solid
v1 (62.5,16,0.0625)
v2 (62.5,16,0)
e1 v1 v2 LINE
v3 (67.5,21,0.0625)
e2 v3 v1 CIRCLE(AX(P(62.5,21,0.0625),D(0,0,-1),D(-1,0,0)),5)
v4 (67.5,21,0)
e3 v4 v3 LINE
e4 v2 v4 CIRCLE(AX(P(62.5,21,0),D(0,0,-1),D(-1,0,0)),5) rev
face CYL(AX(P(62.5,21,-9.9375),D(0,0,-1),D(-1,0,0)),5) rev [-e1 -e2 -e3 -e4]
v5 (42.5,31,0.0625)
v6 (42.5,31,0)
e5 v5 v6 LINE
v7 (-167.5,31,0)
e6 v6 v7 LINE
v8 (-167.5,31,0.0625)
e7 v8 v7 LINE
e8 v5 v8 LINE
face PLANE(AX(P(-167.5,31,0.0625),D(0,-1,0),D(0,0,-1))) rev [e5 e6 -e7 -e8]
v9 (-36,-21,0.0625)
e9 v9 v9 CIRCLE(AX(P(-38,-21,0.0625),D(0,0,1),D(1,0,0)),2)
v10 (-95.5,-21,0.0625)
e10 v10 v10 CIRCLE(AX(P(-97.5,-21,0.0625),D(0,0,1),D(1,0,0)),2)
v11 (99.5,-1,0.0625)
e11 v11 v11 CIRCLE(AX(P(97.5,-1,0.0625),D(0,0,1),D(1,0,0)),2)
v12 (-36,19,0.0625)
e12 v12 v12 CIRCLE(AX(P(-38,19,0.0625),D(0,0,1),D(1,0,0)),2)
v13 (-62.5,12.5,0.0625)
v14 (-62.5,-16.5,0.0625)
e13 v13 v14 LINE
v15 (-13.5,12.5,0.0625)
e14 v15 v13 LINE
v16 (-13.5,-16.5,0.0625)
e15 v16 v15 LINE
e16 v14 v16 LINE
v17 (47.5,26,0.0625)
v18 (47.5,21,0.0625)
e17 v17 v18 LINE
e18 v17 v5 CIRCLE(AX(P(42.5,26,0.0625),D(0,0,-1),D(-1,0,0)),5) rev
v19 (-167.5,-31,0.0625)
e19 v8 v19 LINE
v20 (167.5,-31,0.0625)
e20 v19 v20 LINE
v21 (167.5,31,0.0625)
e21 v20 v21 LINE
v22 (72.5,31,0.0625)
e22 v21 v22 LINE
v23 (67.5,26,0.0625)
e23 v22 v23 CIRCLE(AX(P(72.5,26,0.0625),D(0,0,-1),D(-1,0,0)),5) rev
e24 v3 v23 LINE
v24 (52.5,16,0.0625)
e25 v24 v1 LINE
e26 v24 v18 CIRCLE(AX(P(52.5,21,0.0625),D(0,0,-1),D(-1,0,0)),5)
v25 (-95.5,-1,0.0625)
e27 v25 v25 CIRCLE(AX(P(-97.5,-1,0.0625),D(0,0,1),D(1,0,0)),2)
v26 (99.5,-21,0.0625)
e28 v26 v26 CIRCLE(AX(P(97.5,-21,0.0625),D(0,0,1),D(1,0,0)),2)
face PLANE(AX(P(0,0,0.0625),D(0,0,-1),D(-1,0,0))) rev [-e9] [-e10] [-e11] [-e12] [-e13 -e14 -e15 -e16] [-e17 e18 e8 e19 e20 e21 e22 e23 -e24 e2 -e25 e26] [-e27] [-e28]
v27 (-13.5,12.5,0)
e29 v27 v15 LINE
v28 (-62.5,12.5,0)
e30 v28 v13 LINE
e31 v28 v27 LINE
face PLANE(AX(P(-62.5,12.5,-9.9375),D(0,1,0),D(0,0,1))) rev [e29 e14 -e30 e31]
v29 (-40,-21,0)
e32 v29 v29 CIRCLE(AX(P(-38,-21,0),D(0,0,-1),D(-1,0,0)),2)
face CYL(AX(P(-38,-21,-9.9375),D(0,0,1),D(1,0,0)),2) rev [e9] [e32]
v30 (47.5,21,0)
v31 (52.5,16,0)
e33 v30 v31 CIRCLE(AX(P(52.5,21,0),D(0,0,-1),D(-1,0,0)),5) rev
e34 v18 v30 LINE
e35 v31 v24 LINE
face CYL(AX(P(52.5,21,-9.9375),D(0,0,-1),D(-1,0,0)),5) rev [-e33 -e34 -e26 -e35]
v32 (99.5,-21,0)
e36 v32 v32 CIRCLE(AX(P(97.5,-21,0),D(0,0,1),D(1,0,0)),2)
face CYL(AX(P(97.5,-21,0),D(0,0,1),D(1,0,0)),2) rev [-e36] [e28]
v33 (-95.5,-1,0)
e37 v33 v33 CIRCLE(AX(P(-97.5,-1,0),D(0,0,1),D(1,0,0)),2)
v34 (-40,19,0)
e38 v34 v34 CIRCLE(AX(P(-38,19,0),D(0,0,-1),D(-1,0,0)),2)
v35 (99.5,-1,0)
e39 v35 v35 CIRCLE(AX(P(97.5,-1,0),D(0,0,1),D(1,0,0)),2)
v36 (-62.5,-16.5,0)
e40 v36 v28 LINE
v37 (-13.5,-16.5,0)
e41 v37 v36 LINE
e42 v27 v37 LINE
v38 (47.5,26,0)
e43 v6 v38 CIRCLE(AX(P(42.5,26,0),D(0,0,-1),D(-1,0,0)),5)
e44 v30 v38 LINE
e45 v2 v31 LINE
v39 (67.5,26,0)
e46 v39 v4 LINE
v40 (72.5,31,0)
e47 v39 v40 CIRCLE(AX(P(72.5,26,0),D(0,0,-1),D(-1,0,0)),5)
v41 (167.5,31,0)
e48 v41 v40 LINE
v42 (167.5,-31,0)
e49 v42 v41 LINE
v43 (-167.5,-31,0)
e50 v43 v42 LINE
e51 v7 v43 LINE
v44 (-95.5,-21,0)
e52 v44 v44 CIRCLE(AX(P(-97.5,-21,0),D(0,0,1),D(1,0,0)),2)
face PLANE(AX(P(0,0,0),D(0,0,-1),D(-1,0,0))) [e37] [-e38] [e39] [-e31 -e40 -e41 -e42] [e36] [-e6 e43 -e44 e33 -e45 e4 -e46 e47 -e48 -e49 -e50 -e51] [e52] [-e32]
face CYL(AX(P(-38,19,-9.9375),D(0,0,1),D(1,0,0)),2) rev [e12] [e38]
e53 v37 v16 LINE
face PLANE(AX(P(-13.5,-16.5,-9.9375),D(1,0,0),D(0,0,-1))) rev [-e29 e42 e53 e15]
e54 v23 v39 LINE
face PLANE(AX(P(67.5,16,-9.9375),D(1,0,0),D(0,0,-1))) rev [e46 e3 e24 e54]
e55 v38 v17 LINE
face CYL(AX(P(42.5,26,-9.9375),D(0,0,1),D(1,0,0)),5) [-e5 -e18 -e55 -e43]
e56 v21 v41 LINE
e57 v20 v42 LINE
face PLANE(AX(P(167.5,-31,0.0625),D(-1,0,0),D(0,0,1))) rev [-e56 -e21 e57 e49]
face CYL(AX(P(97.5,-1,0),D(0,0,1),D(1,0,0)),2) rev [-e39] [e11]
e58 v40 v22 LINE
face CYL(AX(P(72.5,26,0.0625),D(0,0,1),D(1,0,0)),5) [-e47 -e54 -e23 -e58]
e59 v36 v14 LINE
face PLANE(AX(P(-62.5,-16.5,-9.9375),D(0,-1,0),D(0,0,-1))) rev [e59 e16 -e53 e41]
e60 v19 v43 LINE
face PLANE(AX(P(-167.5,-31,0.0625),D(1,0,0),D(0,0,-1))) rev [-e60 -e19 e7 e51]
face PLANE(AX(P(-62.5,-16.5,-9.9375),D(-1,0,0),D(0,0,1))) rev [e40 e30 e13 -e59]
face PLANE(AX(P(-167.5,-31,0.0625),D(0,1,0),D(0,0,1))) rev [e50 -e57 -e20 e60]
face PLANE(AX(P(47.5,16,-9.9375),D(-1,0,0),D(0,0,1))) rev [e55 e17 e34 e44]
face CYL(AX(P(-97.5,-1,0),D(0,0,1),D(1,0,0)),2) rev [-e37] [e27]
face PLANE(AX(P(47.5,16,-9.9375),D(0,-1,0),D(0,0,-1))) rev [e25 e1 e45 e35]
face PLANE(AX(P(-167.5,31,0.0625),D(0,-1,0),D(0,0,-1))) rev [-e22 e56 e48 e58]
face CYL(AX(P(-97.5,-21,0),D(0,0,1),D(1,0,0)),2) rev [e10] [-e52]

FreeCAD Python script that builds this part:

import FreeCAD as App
import Part
import Sketcher


def edges_at(feature, points):
    """Names of the edges that pass closest to the given points."""
    edges = feature.Shape.Edges
    near = lambda p: min(range(len(edges)), key=lambda i: edges[i].distToShape(Part.Vertex(*p))[0])
    return sorted({f"Edge{near(p) + 1}" for p in points})

doc = App.newDocument("Part")
body = doc.addObject("PartDesign::Body", "Body")

sketch1 = body.newObject("Sketcher::SketchObject", "Sketch")
sketch1.AttachmentSupport = (doc.getObject("XY_Plane"), [""])
sketch1.MapMode = "FlatFace"
sketch1.addGeometry([
    Part.LineSegment(App.Vector(-168, 31, 0), App.Vector(-168, -31, 0)),
    Part.LineSegment(App.Vector(-168, -31, 0), App.Vector(168, -31, 0)),
    Part.LineSegment(App.Vector(168, -31, 0), App.Vector(168, 31, 0)),
    Part.LineSegment(App.Vector(168, 31, 0), App.Vector(-168, 31, 0)),
], False)
sketch1.addConstraint([
    Sketcher.Constraint("Coincident", 0, 2, 1, 1),
    Sketcher.Constraint("Coincident", 1, 2, 2, 1),
    Sketcher.Constraint("Coincident", 2, 2, 3, 1),
    Sketcher.Constraint("Coincident", 3, 2, 0, 1),
    Sketcher.Constraint("Vertical", 0),
    Sketcher.Constraint("Horizontal", 1),
    Sketcher.Constraint("Vertical", 2),
    Sketcher.Constraint("Horizontal", 3),
    Sketcher.Constraint("Symmetric", 0, 2, 2, 2, -1, 1),
    Sketcher.Constraint("DistanceX", 1, 1, 1, 2, 335.0),
    Sketcher.Constraint("DistanceY", 0, 2, 0, 1, 62.0),
])
pad1 = body.newObject("PartDesign::Pad", "Pad")
pad1.Profile = sketch1
pad1.Length = 0.0625

sketch2 = body.newObject("Sketcher::SketchObject", "Sketch001")
sketch2.AttachmentSupport = (doc.getObject("XY_Plane"), [""])
sketch2.MapMode = "FlatFace"
sketch2.AttachmentOffset = App.Placement(App.Vector(0, 0, 0.0625), App.Rotation())
sketch2.addGeometry([
    Part.Circle(App.Vector(-97.5, -1, 0), App.Vector(0, 0, 1), 2),
    Part.Circle(App.Vector(-97.5, -21, 0), App.Vector(0, 0, 1), 2),
    Part.Circle(App.Vector(97.5, -1, 0), App.Vector(0, 0, 1), 2),
    Part.Circle(App.Vector(97.5, -21, 0), App.Vector(0, 0, 1), 2),
], False)
sketch2.addConstraint([
    Sketcher.Constraint("Equal", 0, 1),
    Sketcher.Constraint("Equal", 1, 2),
    Sketcher.Constraint("Equal", 2, 3),
    Sketcher.Constraint("Symmetric", 0, 3, 2, 3, -2),
    Sketcher.Constraint("Symmetric", 1, 3, 3, 3, -2),
    Sketcher.Constraint("Vertical", 0, 3, 1, 3),
    Sketcher.Constraint("Diameter", 0, 4.0),
    Sketcher.Constraint("DistanceY", 0, 3, -1, 1, 1.0),
    Sketcher.Constraint("DistanceY", 1, 3, -1, 1, 21.0),
    Sketcher.Constraint("DistanceX", 0, 3, 2, 3, 195.0),
])
pocket1 = body.newObject("PartDesign::Pocket", "Pocket")
pocket1.Profile = sketch2
pocket1.Length = 0.0625

sketch3 = body.newObject("Sketcher::SketchObject", "Sketch002")
sketch3.AttachmentSupport = (doc.getObject("XY_Plane"), [""])
sketch3.MapMode = "FlatFace"
sketch3.AttachmentOffset = App.Placement(App.Vector(0, 0, 0.0625), App.Rotation())
sketch3.addGeometry([
    Part.Circle(App.Vector(-38, 19, 0), App.Vector(0, 0, 1), 2),
    Part.Circle(App.Vector(-38, -21, 0), App.Vector(0, 0, 1), 2),
    Part.LineSegment(App.Vector(-62.5, 12.5, 0), App.Vector(-62.5, -16.5, 0)),
    Part.LineSegment(App.Vector(-62.5, -16.5, 0), App.Vector(-13.5, -16.5, 0)),
    Part.LineSegment(App.Vector(-13.5, -16.5, 0), App.Vector(-13.5, 12.5, 0)),
    Part.LineSegment(App.Vector(-13.5, 12.5, 0), App.Vector(-62.5, 12.5, 0)),
    Part.LineSegment(App.Vector(47.5, 31, 0), App.Vector(47.5, 16, 0)),
    Part.LineSegment(App.Vector(47.5, 16, 0), App.Vector(67.5, 16, 0)),
    Part.LineSegment(App.Vector(67.5, 16, 0), App.Vector(67.5, 31, 0)),
    Part.LineSegment(App.Vector(67.5, 31, 0), App.Vector(47.5, 31, 0)),
], False)
sketch3.addConstraint([
    Sketcher.Constraint("Coincident", 2, 2, 3, 1),
    Sketcher.Constraint("Coincident", 3, 2, 4, 1),
    Sketcher.Constraint("Coincident", 4, 2, 5, 1),
    Sketcher.Constraint("Coincident", 5, 2, 2, 1),
    Sketcher.Constraint("Coincident", 6, 2, 7, 1),
    Sketcher.Constraint("Coincident", 7, 2, 8, 1),
    Sketcher.Constraint("Coincident", 8, 2, 9, 1),
    Sketcher.Constraint("Coincident", 9, 2, 6, 1),
    Sketcher.Constraint("Vertical", 2),
    Sketcher.Constraint("Horizontal", 3),
    Sketcher.Constraint("Vertical", 4),
    Sketcher.Constraint("Horizontal", 5),
    Sketcher.Constraint("Vertical", 6),
    Sketcher.Constraint("Horizontal", 7),
    Sketcher.Constraint("Vertical", 8),
    Sketcher.Constraint("Horizontal", 9),
    Sketcher.Constraint("Equal", 0, 1),
    Sketcher.Constraint("Vertical", 0, 3, 1, 3),
    Sketcher.Constraint("Diameter", 0, 4.0),
    Sketcher.Constraint("DistanceX", 3, 1, 3, 2, 49.0),
    Sketcher.Constraint("DistanceX", 7, 1, 7, 2, 20.0),
    Sketcher.Constraint("DistanceY", 2, 2, 2, 1, 29.0),
    Sketcher.Constraint("DistanceY", 6, 2, 6, 1, 15.0),
    Sketcher.Constraint("DistanceX", 0, 3, -1, 1, 38.0),
    Sketcher.Constraint("DistanceY", -1, 1, 0, 3, 19.0),
    Sketcher.Constraint("DistanceY", 1, 3, -1, 1, 21.0),
    Sketcher.Constraint("DistanceY", -1, 1, 6, 2, 16.0),
    Sketcher.Constraint("DistanceX", 4, 2, 6, 2, 61.0),
    Sketcher.Constraint("DistanceX", 2, 2, -1, 1, 62.5),
    Sketcher.Constraint("DistanceY", 2, 2, -1, 1, 16.5),
])
pocket2 = body.newObject("PartDesign::Pocket", "Pocket001")
pocket2.Profile = sketch3
pocket2.Length = 10
doc.recompute()

fillet = body.newObject("PartDesign::Fillet", "Fillet")
fillet.Base = (pocket2, edges_at(pocket2, [
    (47.5, 16, 0.031),
    (47.5, 31, 0.031),
    (67.5, 31, 0.031),
    (67.5, 16, 0.031),
]))
fillet.Radius = 5

doc.recompute()
